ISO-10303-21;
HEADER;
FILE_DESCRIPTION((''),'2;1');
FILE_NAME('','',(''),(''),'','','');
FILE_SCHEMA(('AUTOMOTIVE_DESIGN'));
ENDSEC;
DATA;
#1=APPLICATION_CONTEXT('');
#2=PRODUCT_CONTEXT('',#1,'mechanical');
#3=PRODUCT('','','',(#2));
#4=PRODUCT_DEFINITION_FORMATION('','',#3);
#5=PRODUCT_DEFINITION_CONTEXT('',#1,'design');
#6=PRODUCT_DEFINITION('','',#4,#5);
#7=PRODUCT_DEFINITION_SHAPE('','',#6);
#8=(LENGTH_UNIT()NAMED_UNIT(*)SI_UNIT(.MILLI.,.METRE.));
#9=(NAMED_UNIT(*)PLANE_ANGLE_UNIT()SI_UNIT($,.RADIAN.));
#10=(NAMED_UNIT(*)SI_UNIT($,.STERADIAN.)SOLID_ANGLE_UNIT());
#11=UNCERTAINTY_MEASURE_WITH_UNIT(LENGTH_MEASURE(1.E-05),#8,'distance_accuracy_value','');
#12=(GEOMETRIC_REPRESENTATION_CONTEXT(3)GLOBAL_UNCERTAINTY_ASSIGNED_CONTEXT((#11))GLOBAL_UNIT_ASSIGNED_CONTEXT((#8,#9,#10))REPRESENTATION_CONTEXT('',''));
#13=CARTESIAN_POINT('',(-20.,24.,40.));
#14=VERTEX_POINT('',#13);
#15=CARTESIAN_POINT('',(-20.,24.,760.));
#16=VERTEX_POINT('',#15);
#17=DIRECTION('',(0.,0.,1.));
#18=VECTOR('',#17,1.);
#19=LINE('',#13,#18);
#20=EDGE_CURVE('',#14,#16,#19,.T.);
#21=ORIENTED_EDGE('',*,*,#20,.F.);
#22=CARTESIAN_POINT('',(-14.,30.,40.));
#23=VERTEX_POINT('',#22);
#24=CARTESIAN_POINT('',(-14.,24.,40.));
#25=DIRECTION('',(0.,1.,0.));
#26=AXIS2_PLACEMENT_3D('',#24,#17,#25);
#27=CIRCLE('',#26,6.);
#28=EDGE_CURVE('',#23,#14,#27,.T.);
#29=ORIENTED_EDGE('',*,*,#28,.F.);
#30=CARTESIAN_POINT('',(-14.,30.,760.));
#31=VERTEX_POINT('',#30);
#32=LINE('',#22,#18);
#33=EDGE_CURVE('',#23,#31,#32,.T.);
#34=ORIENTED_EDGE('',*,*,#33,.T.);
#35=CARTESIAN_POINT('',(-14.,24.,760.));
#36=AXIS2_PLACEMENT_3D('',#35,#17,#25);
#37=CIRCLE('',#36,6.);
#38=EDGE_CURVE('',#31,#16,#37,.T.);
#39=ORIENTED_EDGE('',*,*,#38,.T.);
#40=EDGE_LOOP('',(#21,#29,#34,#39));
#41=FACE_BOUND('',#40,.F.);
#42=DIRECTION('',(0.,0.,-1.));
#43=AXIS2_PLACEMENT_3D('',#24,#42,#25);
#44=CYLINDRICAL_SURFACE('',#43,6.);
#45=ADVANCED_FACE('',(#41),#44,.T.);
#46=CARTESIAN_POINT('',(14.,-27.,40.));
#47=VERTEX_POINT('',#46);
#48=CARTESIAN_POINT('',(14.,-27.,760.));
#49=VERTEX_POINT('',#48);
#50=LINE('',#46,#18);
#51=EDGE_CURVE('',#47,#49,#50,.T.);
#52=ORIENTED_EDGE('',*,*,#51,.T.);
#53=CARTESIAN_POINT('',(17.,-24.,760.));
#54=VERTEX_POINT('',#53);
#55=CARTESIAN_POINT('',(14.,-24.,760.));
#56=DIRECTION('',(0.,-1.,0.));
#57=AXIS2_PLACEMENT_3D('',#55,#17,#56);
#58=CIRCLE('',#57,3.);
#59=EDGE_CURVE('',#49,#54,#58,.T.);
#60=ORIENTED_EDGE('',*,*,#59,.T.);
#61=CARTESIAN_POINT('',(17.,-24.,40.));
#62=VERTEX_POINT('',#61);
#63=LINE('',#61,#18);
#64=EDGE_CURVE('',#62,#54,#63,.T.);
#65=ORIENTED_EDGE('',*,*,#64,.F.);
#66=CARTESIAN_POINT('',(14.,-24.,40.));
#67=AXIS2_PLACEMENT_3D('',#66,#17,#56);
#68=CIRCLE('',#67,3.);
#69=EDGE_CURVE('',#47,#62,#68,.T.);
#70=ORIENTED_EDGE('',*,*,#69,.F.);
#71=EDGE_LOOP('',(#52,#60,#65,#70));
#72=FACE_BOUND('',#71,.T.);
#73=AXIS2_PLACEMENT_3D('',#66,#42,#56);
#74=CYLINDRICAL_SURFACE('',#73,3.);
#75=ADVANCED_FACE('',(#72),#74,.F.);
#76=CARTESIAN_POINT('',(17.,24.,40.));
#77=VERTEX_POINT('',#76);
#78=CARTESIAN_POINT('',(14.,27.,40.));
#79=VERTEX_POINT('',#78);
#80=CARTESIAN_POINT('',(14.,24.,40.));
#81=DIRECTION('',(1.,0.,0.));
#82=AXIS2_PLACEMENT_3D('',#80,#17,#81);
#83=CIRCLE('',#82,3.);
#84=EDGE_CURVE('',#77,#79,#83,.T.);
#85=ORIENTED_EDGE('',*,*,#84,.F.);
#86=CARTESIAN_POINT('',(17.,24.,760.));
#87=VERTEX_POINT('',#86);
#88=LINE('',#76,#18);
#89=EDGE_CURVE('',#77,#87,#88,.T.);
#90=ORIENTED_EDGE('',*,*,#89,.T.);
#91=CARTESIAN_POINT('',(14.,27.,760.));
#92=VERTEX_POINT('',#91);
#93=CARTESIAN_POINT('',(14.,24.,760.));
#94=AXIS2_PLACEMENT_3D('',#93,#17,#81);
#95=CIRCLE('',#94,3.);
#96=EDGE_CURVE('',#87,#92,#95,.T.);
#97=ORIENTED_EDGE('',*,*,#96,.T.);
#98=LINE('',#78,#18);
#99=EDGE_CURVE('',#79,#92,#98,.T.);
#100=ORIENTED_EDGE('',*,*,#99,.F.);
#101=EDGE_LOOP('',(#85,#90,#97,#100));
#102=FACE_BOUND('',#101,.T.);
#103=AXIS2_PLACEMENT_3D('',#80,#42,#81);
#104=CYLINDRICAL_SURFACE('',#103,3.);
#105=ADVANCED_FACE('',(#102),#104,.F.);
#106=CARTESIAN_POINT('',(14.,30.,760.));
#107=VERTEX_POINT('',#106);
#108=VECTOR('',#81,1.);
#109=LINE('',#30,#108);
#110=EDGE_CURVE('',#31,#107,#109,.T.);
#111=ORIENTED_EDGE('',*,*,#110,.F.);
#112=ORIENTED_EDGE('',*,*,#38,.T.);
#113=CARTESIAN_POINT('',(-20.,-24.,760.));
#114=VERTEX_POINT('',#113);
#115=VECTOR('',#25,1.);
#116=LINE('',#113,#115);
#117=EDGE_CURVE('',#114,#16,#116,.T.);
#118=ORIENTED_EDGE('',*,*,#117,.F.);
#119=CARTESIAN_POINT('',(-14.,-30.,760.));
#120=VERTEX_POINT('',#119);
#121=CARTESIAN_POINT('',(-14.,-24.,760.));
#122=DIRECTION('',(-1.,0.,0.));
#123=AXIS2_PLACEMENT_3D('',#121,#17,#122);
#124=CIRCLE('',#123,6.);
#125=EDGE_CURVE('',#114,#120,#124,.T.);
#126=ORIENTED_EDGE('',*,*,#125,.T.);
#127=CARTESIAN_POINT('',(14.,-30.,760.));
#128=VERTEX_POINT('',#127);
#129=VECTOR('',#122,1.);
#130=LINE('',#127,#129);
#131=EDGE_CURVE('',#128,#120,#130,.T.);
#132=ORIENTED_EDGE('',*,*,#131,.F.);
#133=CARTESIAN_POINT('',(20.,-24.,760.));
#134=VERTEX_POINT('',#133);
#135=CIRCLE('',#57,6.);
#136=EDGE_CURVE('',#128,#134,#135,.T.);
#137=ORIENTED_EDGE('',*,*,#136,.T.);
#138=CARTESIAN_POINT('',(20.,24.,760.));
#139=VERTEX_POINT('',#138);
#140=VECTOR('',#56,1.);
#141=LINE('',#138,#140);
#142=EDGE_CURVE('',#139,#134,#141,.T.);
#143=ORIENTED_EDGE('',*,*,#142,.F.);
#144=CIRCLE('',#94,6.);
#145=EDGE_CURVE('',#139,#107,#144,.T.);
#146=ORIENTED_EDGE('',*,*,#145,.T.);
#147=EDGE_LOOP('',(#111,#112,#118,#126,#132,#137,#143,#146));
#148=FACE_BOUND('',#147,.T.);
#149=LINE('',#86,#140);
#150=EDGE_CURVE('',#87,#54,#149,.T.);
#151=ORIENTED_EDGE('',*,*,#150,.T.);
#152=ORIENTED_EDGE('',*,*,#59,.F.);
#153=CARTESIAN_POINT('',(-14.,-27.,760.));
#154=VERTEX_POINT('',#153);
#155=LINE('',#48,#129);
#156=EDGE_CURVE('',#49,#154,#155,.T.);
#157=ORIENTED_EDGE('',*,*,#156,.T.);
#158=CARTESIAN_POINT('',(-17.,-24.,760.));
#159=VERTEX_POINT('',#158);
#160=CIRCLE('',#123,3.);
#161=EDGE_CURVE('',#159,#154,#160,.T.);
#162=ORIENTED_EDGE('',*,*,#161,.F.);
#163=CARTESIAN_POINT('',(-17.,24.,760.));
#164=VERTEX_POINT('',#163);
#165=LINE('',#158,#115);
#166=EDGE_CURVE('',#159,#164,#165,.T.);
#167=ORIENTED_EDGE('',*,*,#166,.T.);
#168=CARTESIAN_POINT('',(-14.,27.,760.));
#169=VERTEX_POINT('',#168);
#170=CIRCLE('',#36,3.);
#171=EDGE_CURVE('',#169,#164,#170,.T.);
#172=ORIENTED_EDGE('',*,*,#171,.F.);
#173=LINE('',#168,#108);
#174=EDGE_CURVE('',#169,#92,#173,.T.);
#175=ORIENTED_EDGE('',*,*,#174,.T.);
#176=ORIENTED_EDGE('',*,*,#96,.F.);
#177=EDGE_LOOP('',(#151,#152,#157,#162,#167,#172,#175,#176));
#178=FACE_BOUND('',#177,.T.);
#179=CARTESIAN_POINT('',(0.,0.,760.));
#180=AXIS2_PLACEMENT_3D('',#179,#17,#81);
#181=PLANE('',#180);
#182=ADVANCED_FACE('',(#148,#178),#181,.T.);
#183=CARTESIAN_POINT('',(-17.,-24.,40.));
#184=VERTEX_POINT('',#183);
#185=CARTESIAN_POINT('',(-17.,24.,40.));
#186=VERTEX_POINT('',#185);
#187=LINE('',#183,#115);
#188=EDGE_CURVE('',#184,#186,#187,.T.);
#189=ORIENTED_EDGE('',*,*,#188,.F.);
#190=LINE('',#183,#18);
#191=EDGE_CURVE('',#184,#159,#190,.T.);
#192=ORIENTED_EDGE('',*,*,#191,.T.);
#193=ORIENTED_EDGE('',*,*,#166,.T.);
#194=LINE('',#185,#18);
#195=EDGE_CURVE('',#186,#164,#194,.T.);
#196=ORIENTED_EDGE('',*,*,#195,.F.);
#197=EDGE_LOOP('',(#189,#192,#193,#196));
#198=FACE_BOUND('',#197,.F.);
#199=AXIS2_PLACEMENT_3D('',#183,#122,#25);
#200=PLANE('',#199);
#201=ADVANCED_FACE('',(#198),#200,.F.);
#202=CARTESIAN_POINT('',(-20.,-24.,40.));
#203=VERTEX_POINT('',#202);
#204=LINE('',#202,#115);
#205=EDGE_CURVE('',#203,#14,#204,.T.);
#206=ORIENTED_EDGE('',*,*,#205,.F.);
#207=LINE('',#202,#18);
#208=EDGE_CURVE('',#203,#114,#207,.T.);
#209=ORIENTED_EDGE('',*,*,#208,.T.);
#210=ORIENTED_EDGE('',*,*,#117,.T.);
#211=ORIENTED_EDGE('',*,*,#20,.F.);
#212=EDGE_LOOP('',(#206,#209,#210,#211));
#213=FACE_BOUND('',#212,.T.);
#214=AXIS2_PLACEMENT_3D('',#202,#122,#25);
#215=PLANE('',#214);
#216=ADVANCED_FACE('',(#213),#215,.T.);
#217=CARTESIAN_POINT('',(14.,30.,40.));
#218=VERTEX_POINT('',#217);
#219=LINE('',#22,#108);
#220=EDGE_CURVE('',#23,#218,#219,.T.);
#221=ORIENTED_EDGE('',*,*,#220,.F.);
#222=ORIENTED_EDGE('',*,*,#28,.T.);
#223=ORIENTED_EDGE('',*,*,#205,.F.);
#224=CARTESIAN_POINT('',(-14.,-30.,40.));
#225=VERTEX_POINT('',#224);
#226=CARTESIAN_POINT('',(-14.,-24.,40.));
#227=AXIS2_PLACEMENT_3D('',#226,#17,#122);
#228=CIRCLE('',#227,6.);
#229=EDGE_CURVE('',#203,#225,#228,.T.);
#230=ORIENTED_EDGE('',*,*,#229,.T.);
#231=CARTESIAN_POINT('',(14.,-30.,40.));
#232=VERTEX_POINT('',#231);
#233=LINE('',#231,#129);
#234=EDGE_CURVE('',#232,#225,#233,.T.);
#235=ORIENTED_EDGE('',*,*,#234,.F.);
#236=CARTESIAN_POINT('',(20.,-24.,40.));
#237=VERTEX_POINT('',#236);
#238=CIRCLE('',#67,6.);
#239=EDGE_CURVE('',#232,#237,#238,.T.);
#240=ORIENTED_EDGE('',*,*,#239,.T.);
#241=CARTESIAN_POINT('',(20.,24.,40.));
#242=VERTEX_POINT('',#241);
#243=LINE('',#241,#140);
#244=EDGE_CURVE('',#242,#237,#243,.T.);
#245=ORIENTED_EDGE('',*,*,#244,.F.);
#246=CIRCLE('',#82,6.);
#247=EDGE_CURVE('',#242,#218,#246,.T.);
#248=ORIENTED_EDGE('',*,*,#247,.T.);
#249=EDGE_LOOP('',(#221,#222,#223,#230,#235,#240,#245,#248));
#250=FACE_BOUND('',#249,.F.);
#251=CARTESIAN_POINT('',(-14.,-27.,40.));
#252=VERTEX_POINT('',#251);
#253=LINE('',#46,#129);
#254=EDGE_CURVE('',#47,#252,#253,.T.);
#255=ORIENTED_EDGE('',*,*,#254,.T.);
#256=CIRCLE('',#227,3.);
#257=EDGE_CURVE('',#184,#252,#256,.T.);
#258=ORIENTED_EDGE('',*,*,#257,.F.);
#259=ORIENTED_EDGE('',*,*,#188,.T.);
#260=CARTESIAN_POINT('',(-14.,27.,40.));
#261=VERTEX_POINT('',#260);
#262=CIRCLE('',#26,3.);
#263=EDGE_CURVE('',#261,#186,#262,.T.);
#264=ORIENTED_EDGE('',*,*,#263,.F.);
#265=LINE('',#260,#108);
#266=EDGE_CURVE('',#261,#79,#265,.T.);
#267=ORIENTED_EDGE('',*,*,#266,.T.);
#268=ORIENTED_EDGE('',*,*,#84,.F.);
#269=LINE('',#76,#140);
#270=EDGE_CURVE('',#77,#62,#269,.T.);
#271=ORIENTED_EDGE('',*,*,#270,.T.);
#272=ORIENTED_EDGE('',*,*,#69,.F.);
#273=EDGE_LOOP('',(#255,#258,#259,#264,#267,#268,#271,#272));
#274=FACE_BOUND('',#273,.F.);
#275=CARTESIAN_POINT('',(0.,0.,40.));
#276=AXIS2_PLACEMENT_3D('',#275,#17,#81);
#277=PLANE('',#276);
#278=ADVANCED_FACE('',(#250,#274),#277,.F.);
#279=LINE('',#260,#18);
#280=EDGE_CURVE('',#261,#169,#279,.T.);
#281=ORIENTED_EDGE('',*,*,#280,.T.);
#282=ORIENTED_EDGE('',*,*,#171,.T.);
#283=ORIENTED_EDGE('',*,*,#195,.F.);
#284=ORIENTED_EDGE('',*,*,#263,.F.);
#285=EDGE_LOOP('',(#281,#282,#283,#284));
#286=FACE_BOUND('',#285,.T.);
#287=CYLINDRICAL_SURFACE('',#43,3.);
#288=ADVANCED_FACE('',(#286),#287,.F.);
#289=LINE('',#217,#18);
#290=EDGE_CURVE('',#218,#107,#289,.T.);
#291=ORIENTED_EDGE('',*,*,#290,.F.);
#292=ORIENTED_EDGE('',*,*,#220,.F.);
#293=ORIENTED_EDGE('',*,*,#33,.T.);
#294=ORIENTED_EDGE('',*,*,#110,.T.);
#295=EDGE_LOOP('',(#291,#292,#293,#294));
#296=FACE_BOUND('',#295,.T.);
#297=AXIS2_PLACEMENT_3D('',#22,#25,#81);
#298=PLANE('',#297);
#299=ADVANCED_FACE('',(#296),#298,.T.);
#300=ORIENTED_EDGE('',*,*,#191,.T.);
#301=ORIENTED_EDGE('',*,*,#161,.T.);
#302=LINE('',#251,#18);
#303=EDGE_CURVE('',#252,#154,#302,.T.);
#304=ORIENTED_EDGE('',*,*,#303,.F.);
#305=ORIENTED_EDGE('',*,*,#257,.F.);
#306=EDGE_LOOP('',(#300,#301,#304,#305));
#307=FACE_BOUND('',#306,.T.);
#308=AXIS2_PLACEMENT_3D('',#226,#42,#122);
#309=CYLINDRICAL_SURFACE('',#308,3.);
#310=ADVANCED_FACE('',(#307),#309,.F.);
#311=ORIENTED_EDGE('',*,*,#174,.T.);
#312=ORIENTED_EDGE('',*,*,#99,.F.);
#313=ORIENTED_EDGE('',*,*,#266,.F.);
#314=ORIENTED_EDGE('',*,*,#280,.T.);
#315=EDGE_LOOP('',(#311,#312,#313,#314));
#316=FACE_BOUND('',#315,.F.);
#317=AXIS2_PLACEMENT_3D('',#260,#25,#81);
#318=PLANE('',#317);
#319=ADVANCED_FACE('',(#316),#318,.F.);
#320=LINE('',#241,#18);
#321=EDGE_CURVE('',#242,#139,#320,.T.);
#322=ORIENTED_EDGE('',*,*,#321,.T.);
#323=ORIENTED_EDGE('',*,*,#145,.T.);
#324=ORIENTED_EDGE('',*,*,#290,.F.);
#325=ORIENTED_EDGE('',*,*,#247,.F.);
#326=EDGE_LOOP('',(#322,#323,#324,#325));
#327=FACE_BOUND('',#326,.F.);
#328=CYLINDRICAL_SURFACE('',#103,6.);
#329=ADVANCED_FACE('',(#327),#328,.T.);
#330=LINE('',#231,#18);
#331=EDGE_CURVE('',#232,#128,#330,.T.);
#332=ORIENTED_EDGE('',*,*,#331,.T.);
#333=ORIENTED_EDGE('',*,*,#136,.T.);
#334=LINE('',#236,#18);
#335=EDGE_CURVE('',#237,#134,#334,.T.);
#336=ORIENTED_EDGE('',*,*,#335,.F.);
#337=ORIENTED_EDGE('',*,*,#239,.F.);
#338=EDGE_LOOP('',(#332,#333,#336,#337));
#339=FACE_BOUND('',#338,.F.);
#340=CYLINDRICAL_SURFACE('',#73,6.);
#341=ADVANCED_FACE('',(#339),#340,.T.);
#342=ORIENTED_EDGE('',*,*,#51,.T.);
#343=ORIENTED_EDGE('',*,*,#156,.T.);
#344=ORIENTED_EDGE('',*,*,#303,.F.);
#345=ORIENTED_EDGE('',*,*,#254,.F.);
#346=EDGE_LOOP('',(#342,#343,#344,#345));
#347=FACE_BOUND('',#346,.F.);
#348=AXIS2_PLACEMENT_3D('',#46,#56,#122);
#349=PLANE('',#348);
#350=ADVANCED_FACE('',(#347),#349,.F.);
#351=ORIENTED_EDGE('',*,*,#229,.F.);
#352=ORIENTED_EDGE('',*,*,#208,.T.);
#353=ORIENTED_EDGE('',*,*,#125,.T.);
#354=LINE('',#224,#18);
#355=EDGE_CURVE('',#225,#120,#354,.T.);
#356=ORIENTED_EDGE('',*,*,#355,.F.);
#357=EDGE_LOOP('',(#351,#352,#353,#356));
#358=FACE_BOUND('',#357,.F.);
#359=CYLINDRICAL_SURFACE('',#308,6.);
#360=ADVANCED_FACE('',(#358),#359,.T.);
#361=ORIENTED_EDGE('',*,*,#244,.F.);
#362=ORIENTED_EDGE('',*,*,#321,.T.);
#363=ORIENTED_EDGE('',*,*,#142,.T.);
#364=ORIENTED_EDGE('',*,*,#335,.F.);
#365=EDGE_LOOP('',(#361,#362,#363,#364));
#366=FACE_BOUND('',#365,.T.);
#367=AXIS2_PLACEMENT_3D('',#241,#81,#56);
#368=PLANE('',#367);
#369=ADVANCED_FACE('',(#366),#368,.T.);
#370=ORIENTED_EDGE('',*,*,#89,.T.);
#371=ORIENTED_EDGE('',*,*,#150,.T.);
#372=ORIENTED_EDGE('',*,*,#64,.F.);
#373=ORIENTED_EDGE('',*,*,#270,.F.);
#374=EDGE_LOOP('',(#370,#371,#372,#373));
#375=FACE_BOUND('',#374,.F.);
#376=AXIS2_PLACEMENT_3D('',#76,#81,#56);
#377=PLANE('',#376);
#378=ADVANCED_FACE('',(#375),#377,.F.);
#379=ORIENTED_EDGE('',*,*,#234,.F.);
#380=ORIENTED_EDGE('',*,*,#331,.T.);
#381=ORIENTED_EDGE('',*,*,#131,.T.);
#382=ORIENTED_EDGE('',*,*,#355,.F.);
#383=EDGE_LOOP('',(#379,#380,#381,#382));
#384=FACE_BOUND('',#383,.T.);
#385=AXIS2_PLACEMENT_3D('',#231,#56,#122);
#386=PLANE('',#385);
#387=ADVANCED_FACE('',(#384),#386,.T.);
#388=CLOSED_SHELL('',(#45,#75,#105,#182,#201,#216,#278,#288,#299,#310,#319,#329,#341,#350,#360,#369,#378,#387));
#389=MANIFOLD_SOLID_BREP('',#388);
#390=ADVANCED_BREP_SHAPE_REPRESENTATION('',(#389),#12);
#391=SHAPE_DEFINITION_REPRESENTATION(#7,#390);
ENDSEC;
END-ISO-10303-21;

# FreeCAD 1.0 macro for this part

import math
import FreeCAD as App
import Part
import Sketcher

V = App.Vector

doc = App.newDocument("Part")
body = doc.addObject("PartDesign::Body", "Body")

# Sketch on XY plane
sketch1 = body.newObject("Sketcher::SketchObject", "Sketch")
sketch1.AttachmentSupport = (doc.getObject("XY_Plane"), [""])
sketch1.MapMode = "FlatFace"
sketch1.AttachmentOffset = App.Placement(V(0, 0, 40), App.Rotation())
sketch1.addGeometry([
    Part.LineSegment(V(-20, 24, 0), V(-20, -24, 0)),  # 0
    Part.ArcOfCircle(Part.Circle(V(-14, -24, 0), V(0, 0, 1), 6), math.radians(180), math.radians(270)),  # 1
    Part.LineSegment(V(-14, -30, 0), V(14, -30, 0)),  # 2
    Part.ArcOfCircle(Part.Circle(V(14, -24, 0), V(0, 0, 1), 6), math.radians(-90), math.radians(0)),  # 3
    Part.LineSegment(V(20, -24, 0), V(20, 24, 0)),  # 4
    Part.ArcOfCircle(Part.Circle(V(14, 24, 0), V(0, 0, 1), 6), math.radians(0), math.radians(90)),  # 5
    Part.LineSegment(V(14, 30, 0), V(-14, 30, 0)),  # 6
    Part.ArcOfCircle(Part.Circle(V(-14, 24, 0), V(0, 0, 1), 6), math.radians(90), math.radians(180)),  # 7
    Part.ArcOfCircle(Part.Circle(V(-14, 24, 0), V(0, 0, 1), 3), math.radians(90), math.radians(180)),  # 8
    Part.LineSegment(V(-14, 27, 0), V(14, 27, 0)),  # 9
    Part.ArcOfCircle(Part.Circle(V(14, 24, 0), V(0, 0, 1), 3), math.radians(0), math.radians(90)),  # 10
    Part.LineSegment(V(17, 24, 0), V(17, -24, 0)),  # 11
    Part.ArcOfCircle(Part.Circle(V(14, -24, 0), V(0, 0, 1), 3), math.radians(-90), math.radians(0)),  # 12
    Part.LineSegment(V(14, -27, 0), V(-14, -27, 0)),  # 13
    Part.ArcOfCircle(Part.Circle(V(-14, -24, 0), V(0, 0, 1), 3), math.radians(180), math.radians(270)),  # 14
    Part.LineSegment(V(-17, -24, 0), V(-17, 24, 0)),  # 15
], False)
sketch1.addConstraint([
    Sketcher.Constraint("Tangent", 0, 2, 1, 1),
    Sketcher.Constraint("Tangent", 1, 2, 2, 1),
    Sketcher.Constraint("Tangent", 2, 2, 3, 1),
    Sketcher.Constraint("Tangent", 3, 2, 4, 1),
    Sketcher.Constraint("Tangent", 4, 2, 5, 1),
    Sketcher.Constraint("Tangent", 5, 2, 6, 1),
    Sketcher.Constraint("Tangent", 6, 2, 7, 1),
    Sketcher.Constraint("Tangent", 7, 2, 0, 1),
    Sketcher.Constraint("Tangent", 8, 1, 9, 1),
    Sketcher.Constraint("Tangent", 9, 2, 10, 2),
    Sketcher.Constraint("Tangent", 10, 1, 11, 1),
    Sketcher.Constraint("Tangent", 11, 2, 12, 2),
    Sketcher.Constraint("Tangent", 12, 1, 13, 1),
    Sketcher.Constraint("Tangent", 13, 2, 14, 2),
    Sketcher.Constraint("Tangent", 14, 1, 15, 1),
    Sketcher.Constraint("Tangent", 15, 2, 8, 2),
    Sketcher.Constraint("Vertical", 0),
    Sketcher.Constraint("Horizontal", 2),
    Sketcher.Constraint("Vertical", 4),
    Sketcher.Constraint("Horizontal", 6),
    Sketcher.Constraint("Horizontal", 9),
    Sketcher.Constraint("Vertical", 11),
    Sketcher.Constraint("Horizontal", 13),
    Sketcher.Constraint("Vertical", 15),
    Sketcher.Constraint("Coincident", 8, 3, 7, 3),
    Sketcher.Constraint("Coincident", 10, 3, 5, 3),
    Sketcher.Constraint("Coincident", 12, 3, 3, 3),
    Sketcher.Constraint("Equal", 1, 3),
    Sketcher.Constraint("Equal", 3, 5),
    Sketcher.Constraint("Equal", 5, 7),
    Sketcher.Constraint("Equal", 12, 14),
    Sketcher.Constraint("Symmetric", 1, 3, 5, 3, -1, 1),
    Sketcher.Constraint("Radius", 1, 6.0),
    Sketcher.Constraint("Radius", 8, 3.0),
    Sketcher.Constraint("DistanceX", 0, 2, -1, 1, 20.0),
    Sketcher.Constraint("DistanceY", 1, 2, -1, 1, 30.0),
])
pad1 = body.newObject("PartDesign::Pad", "Pad")
pad1.Profile = sketch1
pad1.Length = 720

doc.recompute()
